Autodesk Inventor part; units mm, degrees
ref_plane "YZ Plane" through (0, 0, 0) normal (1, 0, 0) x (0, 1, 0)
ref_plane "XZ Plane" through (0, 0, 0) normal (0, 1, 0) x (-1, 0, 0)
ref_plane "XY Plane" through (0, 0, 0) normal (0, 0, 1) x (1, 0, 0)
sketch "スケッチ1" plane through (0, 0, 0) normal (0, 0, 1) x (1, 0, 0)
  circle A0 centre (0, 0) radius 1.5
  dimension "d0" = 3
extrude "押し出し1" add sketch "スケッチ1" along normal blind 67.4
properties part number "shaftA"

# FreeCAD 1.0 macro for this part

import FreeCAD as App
import Part
import Sketcher

V = App.Vector
Q = App.Units.Quantity

doc = App.newDocument("Part")
params = doc.addObject("Spreadsheet::Sheet", "Params")
for row, (alias, value) in enumerate([
    ("sketch1_diameter", "3 mm"),
    ("pad1_length", "67.4 mm"),
], start=1):
    params.set(f"A{row}", alias)
    params.set(f"B{row}", "=" + value)
    params.setAlias(f"B{row}", alias)

body = doc.addObject("PartDesign::Body", "Body")

# Sketch on XY plane
sketch1 = doc.addObject("Sketcher::SketchObject", "Sketch")
body.addObject(sketch1)
sketch1.AttachmentSupport = (doc.XY_Plane, [""])
sketch1.MapMode = "FlatFace"
sketch1.addGeometry(Part.Circle(V(0, 0, 0), V(0, 0, 1), 1.5), False)
sketch1.addConstraint([
    Sketcher.Constraint("Coincident", 0, 3, -1, 1),
    Sketcher.Constraint("Diameter", 0, Q("3 mm")),
])
sketch1.setExpression("Constraints[1]", "Params.sketch1_diameter")
pad1 = doc.addObject("PartDesign::Pad", "Pad")
body.addObject(pad1)
pad1.Profile = sketch1
pad1.setExpression("Length", "Params.pad1_length")

doc.recompute()
